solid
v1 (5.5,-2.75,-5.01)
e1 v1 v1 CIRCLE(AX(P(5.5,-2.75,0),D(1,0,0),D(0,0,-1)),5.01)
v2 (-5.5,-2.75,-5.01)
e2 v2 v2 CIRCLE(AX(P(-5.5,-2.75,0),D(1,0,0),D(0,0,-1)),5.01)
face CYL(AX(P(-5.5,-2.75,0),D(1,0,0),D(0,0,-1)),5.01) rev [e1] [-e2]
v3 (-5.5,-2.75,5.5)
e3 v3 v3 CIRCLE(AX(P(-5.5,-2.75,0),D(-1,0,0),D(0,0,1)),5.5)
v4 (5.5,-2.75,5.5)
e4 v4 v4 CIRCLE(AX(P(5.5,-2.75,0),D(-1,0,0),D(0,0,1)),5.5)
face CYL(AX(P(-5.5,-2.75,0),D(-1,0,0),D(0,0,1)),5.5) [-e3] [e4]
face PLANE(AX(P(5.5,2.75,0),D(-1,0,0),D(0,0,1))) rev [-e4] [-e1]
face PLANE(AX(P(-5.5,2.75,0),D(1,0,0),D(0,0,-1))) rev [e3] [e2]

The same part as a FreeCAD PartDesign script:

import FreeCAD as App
import Part
import Sketcher

V = App.Vector

doc = App.newDocument("Part")
params = doc.addObject("Spreadsheet::Sheet", "Params")
for row, (alias, value) in enumerate([
    ("sketch1_width", "11 mm"),
    ("sketch1_height", "5.5 mm"),
    ("revolution_angle", "360 deg"),
    ("sketch2_diameter", "10.02 mm"),
], start=1):
    params.set(f"A{row}", alias)
    params.set(f"B{row}", "=" + value)
    params.setAlias(f"B{row}", alias)

body = doc.addObject("PartDesign::Body", "Body")

sketch1 = body.newObject("Sketcher::SketchObject", "Sketch")
sketch1.AttachmentSupport = (doc.getObject("XY_Plane"), [""])
sketch1.MapMode = "FlatFace"
sketch1.addGeometry(Part.LineSegment(V(-5.5, 2.75, 0), V(-5.5, -2.75, 0)), False)
sketch1.addGeometry(Part.LineSegment(V(-5.5, -2.75, 0), V(5.5, -2.75, 0)), False)
sketch1.addGeometry(Part.LineSegment(V(5.5, -2.75, 0), V(5.5, 2.75, 0)), False)
sketch1.addGeometry(Part.LineSegment(V(5.5, 2.75, 0), V(-5.5, 2.75, 0)), False)
sketch1.addGeometry(Part.LineSegment(V(-5.5, -2.75, 0), V(5.5, -2.75, 0)), True)
sketch1.addConstraint(Sketcher.Constraint("Coincident", 0, 2, 1, 1))
sketch1.addConstraint(Sketcher.Constraint("Coincident", 1, 2, 2, 1))
sketch1.addConstraint(Sketcher.Constraint("Coincident", 2, 2, 3, 1))
sketch1.addConstraint(Sketcher.Constraint("Coincident", 3, 2, 0, 1))
sketch1.addConstraint(Sketcher.Constraint("Vertical", 0))
sketch1.addConstraint(Sketcher.Constraint("Horizontal", 1))
sketch1.addConstraint(Sketcher.Constraint("Vertical", 2))
sketch1.addConstraint(Sketcher.Constraint("Horizontal", 3))
sketch1.addConstraint(Sketcher.Constraint("Horizontal", 4))
sketch1.addConstraint(Sketcher.Constraint("Coincident", 4, 1, 0, 2))
sketch1.addConstraint(Sketcher.Constraint("Symmetric", 0, 2, 2, 2, -1, 1))
sketch1.addConstraint(Sketcher.Constraint("Vertical", 2, 2, 4, 2))
sketch1.addConstraint(Sketcher.Constraint("DistanceX", 1, 1, 1, 2, 11.0))
sketch1.addConstraint(Sketcher.Constraint("DistanceY", 0, 2, 0, 1, 5.5))
sketch1.setExpression("Constraints[12]", "Params.sketch1_width")
sketch1.setExpression("Constraints[13]", "Params.sketch1_height")
revolution = body.newObject("PartDesign::Revolution", "Revolution")
revolution.Profile = sketch1
revolution.ReferenceAxis = (sketch1, ["Axis0"])
revolution.setExpression("Angle", "Params.revolution_angle")

sketch2 = body.newObject("Sketcher::SketchObject", "Sketch001")
sketch2.AttachmentSupport = (doc.getObject("YZ_Plane"), [""])
sketch2.MapMode = "FlatFace"
sketch2.AttachmentOffset = App.Placement(V(0, 0, 5.5), App.Rotation())
sketch2.addGeometry(Part.Circle(V(-2.75, 0, 0), V(0, 0, 1), 5.01), False)
sketch2.addConstraint(Sketcher.Constraint("PointOnObject", 0, 3, -1))
sketch2.addConstraint(Sketcher.Constraint("Diameter", 0, 10.02))
sketch2.addConstraint(Sketcher.Constraint("DistanceX", 0, 3, -1, 1, 2.75))
sketch2.setExpression("Constraints[1]", "Params.sketch2_diameter")
pocket1 = body.newObject("PartDesign::Pocket", "Pocket")
pocket1.Profile = sketch2
pocket1.Type = "ThroughAll"

doc.recompute()
